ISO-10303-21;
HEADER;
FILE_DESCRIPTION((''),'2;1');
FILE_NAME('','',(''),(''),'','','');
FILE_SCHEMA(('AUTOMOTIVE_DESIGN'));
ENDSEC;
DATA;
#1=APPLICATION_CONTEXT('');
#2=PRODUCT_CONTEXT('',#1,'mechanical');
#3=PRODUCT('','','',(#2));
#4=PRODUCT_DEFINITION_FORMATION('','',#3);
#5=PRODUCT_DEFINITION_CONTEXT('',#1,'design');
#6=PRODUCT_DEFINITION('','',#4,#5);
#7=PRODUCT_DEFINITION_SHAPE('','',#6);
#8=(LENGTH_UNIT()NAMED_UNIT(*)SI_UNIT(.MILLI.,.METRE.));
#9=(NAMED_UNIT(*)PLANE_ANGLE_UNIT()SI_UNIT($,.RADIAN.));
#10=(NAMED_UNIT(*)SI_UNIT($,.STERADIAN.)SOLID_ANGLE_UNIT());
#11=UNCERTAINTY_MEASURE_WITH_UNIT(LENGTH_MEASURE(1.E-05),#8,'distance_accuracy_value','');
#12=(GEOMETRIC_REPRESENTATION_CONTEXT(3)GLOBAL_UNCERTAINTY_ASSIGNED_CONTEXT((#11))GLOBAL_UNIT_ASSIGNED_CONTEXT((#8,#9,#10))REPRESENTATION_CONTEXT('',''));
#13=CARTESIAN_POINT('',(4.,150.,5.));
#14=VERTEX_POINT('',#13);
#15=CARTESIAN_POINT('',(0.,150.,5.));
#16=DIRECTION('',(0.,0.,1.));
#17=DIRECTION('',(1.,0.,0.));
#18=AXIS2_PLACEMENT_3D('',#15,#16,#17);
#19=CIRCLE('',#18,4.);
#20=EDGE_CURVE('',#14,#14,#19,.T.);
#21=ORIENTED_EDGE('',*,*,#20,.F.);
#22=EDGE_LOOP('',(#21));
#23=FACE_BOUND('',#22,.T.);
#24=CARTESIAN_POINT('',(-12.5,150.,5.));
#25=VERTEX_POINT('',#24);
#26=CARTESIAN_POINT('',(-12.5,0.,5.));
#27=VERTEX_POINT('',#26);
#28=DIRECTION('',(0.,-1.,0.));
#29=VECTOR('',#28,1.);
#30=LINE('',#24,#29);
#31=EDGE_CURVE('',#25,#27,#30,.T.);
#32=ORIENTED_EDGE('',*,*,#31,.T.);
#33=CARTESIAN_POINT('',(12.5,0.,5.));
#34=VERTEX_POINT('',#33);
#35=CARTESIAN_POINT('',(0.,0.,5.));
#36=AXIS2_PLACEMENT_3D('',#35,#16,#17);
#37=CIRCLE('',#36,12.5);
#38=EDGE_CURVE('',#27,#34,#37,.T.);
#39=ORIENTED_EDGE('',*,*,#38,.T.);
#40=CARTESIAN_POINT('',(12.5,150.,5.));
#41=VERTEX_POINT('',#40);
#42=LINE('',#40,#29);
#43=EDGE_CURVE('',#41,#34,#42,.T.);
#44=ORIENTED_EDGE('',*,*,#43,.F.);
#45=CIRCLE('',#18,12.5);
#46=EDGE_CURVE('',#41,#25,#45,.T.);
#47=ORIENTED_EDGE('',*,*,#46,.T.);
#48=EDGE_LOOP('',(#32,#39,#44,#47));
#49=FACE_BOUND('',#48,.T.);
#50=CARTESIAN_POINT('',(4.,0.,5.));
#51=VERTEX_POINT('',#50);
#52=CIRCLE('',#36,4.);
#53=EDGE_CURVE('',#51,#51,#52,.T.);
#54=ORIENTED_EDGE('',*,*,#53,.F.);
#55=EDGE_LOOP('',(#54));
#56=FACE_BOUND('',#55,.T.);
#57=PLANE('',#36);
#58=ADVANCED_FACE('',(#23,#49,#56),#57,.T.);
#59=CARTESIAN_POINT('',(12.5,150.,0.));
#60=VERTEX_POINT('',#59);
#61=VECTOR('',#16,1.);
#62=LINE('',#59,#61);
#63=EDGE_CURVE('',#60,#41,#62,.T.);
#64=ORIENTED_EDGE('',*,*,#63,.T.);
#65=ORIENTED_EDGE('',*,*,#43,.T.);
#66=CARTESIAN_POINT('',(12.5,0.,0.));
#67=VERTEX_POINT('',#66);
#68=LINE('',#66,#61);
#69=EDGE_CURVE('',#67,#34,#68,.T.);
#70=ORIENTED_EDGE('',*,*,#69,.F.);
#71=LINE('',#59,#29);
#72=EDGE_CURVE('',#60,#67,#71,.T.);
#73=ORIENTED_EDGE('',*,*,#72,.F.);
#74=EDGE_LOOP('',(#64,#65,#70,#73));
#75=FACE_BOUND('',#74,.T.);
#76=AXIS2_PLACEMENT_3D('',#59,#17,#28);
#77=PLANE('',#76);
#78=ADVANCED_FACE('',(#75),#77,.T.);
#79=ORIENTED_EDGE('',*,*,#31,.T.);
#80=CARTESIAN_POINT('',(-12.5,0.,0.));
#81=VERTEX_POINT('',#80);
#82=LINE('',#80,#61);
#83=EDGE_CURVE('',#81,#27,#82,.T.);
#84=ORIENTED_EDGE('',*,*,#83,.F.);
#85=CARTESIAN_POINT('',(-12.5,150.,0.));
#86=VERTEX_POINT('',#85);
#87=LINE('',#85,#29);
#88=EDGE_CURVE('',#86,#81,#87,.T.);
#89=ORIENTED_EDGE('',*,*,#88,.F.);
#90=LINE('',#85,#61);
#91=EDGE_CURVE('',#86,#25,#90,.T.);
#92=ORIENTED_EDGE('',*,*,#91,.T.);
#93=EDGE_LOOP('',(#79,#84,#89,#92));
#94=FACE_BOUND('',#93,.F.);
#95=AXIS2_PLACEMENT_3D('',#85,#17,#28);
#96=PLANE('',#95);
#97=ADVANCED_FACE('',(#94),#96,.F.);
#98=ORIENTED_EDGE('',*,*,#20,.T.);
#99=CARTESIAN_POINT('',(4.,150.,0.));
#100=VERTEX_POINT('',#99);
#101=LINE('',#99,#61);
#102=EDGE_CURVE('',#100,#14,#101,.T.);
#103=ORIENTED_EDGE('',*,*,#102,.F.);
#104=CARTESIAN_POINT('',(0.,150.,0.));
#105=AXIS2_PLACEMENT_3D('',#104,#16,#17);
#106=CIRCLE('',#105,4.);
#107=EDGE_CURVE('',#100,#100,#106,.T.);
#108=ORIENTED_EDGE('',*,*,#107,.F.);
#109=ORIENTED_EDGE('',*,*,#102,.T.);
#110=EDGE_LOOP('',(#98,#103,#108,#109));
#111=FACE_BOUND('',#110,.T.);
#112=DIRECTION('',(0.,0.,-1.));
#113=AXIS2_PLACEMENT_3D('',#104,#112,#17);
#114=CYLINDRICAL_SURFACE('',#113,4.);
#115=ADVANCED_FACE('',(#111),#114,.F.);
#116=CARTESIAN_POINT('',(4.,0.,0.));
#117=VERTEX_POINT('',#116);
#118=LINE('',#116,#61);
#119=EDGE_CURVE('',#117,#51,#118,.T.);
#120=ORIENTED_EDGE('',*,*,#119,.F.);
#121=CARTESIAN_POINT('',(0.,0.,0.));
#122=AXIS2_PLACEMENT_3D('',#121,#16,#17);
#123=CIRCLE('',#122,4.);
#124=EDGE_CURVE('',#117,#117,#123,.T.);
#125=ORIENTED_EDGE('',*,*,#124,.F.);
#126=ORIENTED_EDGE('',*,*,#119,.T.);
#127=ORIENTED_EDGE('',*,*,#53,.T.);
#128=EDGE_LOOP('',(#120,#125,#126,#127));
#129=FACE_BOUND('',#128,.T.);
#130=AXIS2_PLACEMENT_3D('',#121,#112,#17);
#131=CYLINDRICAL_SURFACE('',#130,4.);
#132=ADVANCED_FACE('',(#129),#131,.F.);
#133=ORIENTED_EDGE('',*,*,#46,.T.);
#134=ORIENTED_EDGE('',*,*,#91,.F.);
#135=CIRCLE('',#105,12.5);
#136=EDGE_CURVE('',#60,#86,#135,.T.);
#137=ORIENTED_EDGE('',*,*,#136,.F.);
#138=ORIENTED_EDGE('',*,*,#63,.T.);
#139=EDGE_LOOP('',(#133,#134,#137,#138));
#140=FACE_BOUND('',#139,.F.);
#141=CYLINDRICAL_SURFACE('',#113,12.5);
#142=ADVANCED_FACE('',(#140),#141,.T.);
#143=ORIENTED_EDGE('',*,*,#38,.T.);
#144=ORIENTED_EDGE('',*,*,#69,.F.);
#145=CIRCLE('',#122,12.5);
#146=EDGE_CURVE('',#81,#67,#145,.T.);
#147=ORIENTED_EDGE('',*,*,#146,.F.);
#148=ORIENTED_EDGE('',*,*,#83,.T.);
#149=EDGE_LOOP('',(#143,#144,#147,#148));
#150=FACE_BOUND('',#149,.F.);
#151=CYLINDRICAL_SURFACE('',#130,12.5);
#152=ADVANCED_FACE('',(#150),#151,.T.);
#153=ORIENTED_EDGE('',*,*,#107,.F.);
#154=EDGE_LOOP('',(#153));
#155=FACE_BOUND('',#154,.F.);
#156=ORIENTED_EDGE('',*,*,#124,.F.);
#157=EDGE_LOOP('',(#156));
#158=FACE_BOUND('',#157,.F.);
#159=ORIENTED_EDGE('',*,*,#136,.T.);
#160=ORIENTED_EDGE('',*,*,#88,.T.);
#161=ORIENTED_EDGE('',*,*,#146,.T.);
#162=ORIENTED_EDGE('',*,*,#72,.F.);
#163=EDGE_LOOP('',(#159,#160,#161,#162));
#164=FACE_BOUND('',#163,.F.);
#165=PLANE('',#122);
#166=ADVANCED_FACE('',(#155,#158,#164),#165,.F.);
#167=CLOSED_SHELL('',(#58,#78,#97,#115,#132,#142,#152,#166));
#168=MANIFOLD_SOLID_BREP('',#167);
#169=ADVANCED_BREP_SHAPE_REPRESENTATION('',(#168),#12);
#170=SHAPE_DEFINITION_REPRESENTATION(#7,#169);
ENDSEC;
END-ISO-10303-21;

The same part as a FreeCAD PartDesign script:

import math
import FreeCAD as App
import Part
import Sketcher
from FreeCAD import Vector

doc = App.newDocument("Part")
body = doc.addObject("PartDesign::Body", "Body")

sketch1 = body.newObject("Sketcher::SketchObject", "Sketch")
sketch1.AttachmentSupport = (doc.getObject("XY_Plane"), [""])
sketch1.MapMode = "FlatFace"
sketch1.addGeometry([
    Part.ArcOfCircle(Part.Circle(Vector(0, 0, 0), Vector(0, 0, 1), 12.5), math.radians(180), math.radians(360)),
    Part.LineSegment(Vector(12.5, 0, 0), Vector(12.5, 150, 0)),
    Part.ArcOfCircle(Part.Circle(Vector(0, 150, 0), Vector(0, 0, 1), 12.5), math.radians(0), math.radians(180)),
    Part.LineSegment(Vector(-12.5, 150, 0), Vector(-12.5, 0, 0)),
    Part.Circle(Vector(0, 0, 0), Vector(0, 0, 1), 4),
    Part.Circle(Vector(0, 150, 0), Vector(0, 0, 1), 4),
], False)
sketch1.addConstraint([
    Sketcher.Constraint("Tangent", 0, 2, 1, 1),
    Sketcher.Constraint("Tangent", 1, 2, 2, 1),
    Sketcher.Constraint("Tangent", 2, 2, 3, 1),
    Sketcher.Constraint("Tangent", 3, 2, 0, 1),
    Sketcher.Constraint("Vertical", 1),
    Sketcher.Constraint("Vertical", 3),
    Sketcher.Constraint("Coincident", 0, 3, -1, 1),
    Sketcher.Constraint("Coincident", 4, 3, -1, 1),
    Sketcher.Constraint("Coincident", 5, 3, 2, 3),
    Sketcher.Constraint("Equal", 4, 5),
    Sketcher.Constraint("Diameter", 4, 8.0),
    Sketcher.Constraint("Radius", 0, 12.5),
    Sketcher.Constraint("DistanceY", 1, 1, 1, 2, 150.0),
])
pad1 = body.newObject("PartDesign::Pad", "Pad")
pad1.Profile = sketch1
pad1.Length = 5

doc.recompute()
